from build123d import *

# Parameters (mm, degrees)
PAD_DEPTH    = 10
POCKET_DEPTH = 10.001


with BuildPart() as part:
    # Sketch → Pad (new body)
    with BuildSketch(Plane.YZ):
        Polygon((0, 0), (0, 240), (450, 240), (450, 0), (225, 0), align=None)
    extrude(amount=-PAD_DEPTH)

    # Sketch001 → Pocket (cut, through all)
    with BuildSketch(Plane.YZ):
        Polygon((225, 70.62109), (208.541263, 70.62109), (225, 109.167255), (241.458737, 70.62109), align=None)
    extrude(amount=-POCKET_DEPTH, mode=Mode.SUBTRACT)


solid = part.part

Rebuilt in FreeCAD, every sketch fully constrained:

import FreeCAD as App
import Part
import Sketcher

V = App.Vector
Q = App.Units.Quantity


def add_polygon(sketch, points):
    """Adds a closed chain of lines whose ends are joined by coincident constraints."""
    first, n = sketch.GeometryCount, len(points)
    for a, b in zip(points, points[1:] + points[:1]):
        sketch.addGeometry(Part.LineSegment(App.Vector(*a, 0), App.Vector(*b, 0)), False)
    for i in range(n):
        sketch.addConstraint(Sketcher.Constraint("Coincident", first + i, 2, first + (i + 1) % n, 1))

doc = App.newDocument("Part")
params = doc.addObject("Spreadsheet::Sheet", "Params")
for row, (alias, value) in enumerate([
    ("sketch1_width", "450 mm"),
    ("sketch1_height", "240 mm"),
    ("pad1_length", "10 mm"),
], start=1):
    params.set(f"A{row}", alias)
    params.set(f"B{row}", "=" + value)
    params.setAlias(f"B{row}", alias)

body = doc.addObject("PartDesign::Body", "Body")

# Sketch on YZ plane
sketch1 = body.newObject("Sketcher::SketchObject", "Sketch")
sketch1.AttachmentSupport = (doc.getObject("YZ_Plane"), [""])
sketch1.MapMode = "FlatFace"
add_polygon(sketch1, [(0, 240), (0, 0), (450, 0), (450, 240)])  # lines 0-3
sketch1.addConstraint(Sketcher.Constraint("Vertical", 0))
sketch1.addConstraint(Sketcher.Constraint("Horizontal", 1))
sketch1.addConstraint(Sketcher.Constraint("Vertical", 2))
sketch1.addConstraint(Sketcher.Constraint("Horizontal", 3))
sketch1.addConstraint(Sketcher.Constraint("Coincident", 0, 2, -1, 1))
sketch1.addConstraint(Sketcher.Constraint("DistanceX", 1, 1, 1, 2, Q("450 mm")))
sketch1.addConstraint(Sketcher.Constraint("DistanceY", 0, 2, 0, 1, Q("240 mm")))
sketch1.setExpression("Constraints[9]", "Params.sketch1_width")
sketch1.setExpression("Constraints[10]", "Params.sketch1_height")
pad1 = body.newObject("PartDesign::Pad", "Pad")
pad1.Profile = sketch1
pad1.setExpression("Length", "Params.pad1_length")
pad1.Reversed = True

# Sketch on YZ plane
sketch2 = body.newObject("Sketcher::SketchObject", "Sketch001")
sketch2.AttachmentSupport = (doc.getObject("YZ_Plane"), [""])
sketch2.MapMode = "FlatFace"
add_polygon(sketch2, [(209, 71), (241, 71), (225, 109)])  # lines 0-2
sketch2.addConstraint(Sketcher.Constraint("Horizontal", 0))
sketch2.addConstraint(Sketcher.Constraint("Equal", 1, 2))
sketch2.addConstraint(Sketcher.Constraint("DistanceX", -1, 1, 1, 2, Q("225 mm")))
sketch2.addConstraint(Sketcher.Constraint("DistanceX", 0, 1, 0, 2, Q("32.917474 mm")))
sketch2.addConstraint(Sketcher.Constraint("DistanceY", -1, 1, 0, 2, Q("70.62109 mm")))
sketch2.addConstraint(Sketcher.Constraint("Distance", 1, Q("41.912968 mm")))
pocket1 = body.newObject("PartDesign::Pocket", "Pocket")
pocket1.Profile = sketch2
pocket1.Type = "ThroughAll"

doc.recompute()
